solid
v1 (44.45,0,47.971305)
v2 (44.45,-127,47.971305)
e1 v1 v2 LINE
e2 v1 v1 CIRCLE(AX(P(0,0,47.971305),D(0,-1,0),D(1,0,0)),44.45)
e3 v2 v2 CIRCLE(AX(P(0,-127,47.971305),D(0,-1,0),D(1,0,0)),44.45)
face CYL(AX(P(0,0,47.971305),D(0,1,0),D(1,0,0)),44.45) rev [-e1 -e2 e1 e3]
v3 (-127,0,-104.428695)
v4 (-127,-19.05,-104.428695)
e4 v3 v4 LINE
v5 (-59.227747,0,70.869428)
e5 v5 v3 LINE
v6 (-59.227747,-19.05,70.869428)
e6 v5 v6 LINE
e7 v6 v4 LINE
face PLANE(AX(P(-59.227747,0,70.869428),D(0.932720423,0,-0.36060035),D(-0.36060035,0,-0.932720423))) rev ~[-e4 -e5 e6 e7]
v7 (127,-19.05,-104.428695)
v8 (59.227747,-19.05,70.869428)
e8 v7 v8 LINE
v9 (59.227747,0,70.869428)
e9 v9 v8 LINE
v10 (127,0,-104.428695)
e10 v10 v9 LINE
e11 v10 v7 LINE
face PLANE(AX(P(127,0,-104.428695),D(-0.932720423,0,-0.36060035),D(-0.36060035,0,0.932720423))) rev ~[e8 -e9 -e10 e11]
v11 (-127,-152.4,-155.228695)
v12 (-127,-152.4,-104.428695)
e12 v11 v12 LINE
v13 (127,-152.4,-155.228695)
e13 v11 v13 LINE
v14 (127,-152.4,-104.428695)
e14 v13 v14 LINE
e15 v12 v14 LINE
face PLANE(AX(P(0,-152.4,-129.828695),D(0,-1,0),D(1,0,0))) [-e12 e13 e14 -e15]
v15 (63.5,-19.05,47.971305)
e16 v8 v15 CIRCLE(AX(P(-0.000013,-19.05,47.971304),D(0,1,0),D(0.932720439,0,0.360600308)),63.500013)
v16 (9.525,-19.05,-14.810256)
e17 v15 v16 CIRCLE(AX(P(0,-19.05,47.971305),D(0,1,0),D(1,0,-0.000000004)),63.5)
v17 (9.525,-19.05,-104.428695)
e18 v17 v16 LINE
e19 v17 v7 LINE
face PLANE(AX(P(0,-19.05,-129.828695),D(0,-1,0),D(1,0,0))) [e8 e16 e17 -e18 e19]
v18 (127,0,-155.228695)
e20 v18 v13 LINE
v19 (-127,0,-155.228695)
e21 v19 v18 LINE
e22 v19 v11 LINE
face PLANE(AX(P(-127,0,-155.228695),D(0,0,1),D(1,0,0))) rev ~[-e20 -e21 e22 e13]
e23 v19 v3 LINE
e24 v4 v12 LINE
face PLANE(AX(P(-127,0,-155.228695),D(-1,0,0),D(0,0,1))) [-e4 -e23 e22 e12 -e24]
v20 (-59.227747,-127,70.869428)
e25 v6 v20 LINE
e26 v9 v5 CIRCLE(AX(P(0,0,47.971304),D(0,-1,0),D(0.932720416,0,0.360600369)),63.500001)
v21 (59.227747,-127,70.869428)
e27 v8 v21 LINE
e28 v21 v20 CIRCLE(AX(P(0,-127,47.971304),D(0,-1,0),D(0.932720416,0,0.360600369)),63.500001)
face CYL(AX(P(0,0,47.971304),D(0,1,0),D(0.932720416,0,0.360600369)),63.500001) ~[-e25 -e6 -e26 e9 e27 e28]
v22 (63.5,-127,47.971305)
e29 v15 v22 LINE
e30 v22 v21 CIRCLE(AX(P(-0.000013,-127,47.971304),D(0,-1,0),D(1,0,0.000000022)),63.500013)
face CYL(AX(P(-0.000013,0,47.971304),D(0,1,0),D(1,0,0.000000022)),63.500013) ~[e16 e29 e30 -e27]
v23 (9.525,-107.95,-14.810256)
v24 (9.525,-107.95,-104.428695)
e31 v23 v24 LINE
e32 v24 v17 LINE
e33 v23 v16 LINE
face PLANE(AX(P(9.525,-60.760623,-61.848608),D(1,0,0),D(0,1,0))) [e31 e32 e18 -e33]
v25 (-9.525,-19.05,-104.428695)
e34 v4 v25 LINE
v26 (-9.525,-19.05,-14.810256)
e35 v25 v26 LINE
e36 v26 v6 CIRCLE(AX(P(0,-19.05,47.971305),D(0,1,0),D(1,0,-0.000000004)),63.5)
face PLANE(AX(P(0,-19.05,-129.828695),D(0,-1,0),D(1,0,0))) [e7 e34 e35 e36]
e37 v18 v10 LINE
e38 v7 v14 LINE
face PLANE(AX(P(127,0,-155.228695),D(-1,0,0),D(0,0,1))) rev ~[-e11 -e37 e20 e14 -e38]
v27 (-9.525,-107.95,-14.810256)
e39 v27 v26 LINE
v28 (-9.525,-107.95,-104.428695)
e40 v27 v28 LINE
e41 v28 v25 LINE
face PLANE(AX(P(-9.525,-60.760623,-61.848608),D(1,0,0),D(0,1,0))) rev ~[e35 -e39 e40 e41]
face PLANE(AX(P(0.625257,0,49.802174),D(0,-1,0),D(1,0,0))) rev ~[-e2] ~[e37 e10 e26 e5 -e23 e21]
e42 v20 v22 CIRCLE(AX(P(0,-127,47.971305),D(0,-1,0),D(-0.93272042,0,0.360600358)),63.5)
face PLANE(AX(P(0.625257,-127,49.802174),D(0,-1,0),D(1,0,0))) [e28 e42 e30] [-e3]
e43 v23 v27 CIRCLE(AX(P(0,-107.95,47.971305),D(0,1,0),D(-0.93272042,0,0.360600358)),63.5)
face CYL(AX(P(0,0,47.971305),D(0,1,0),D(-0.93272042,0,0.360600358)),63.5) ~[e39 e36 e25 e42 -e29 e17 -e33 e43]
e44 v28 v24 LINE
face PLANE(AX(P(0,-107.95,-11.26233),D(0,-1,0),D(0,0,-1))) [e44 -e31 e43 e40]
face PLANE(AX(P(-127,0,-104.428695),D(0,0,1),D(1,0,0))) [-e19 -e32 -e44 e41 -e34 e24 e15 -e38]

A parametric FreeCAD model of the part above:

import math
import FreeCAD as App
import Part
import Sketcher
Q = App.Units.Quantity


def add_polygon(sketch, points):
    """Adds a closed chain of lines whose ends are joined by coincident constraints."""
    first, n = sketch.GeometryCount, len(points)
    for a, b in zip(points, points[1:] + points[:1]):
        sketch.addGeometry(Part.LineSegment(App.Vector(*a, 0), App.Vector(*b, 0)), False)
    for i in range(n):
        sketch.addConstraint(Sketcher.Constraint("Coincident", first + i, 2, first + (i + 1) % n, 1))

doc = App.newDocument("Part")
body = doc.addObject("PartDesign::Body", "Body")

sketch1 = body.newObject("Sketcher::SketchObject", "Sketch")
sketch1.AttachmentSupport = (doc.getObject("XZ_Plane"), [""])
sketch1.MapMode = "FlatFace"
add_polygon(sketch1, [(-127, -104.428695), (-127, -155.228695), (127, -155.228695), (127, -104.428695)])
sketch1.addConstraint([
    Sketcher.Constraint("Vertical", 0),
    Sketcher.Constraint("Horizontal", 1),
    Sketcher.Constraint("Vertical", 2),
    Sketcher.Constraint("Horizontal", 3),
    Sketcher.Constraint("DistanceX", 1, 1, 1, 2, Q("10 in")),
    Sketcher.Constraint("DistanceY", 0, 2, 0, 1, Q("2 in")),
    Sketcher.Constraint("DistanceX", 0, 2, -1, 1, Q("5 in")),
    Sketcher.Constraint("DistanceY", 0, 2, -1, 1, Q("155.228695 mm")),
])
pad1 = body.newObject("PartDesign::Pad", "Pad")
pad1.Profile = sketch1
pad1.Length = Q("6 in")

sketch2 = body.newObject("Sketcher::SketchObject", "Sketch001")
sketch2.AttachmentSupport = (doc.getObject("XZ_Plane"), [""])
sketch2.MapMode = "FlatFace"
sketch2.addGeometry([
    Part.LineSegment(App.Vector(-127, -104.428695, 0), App.Vector(-127, -155.228695, 0)),
    Part.LineSegment(App.Vector(-127, -155.228695, 0), App.Vector(127, -155.228695, 0)),
    Part.LineSegment(App.Vector(127, -155.228695, 0), App.Vector(127, -104.428695, 0)),
    Part.LineSegment(App.Vector(127, -104.428695, 0), App.Vector(59.227747, 70.869428, 0)),
    Part.ArcOfCircle(Part.Circle(App.Vector(-0.000013, 47.971304, 0), App.Vector(0, 0, 1), 63.500013), math.radians(0.000001), math.radians(21.137068)),
    Part.ArcOfCircle(Part.Circle(App.Vector(0, 47.971305, 0), App.Vector(0, 0, 1), 63.5), math.radians(158.862929), math.radians(360)),
    Part.LineSegment(App.Vector(-59.227747, 70.869428, 0), App.Vector(-127, -104.428695, 0)),
], False)
sketch2.addConstraint([
    Sketcher.Constraint("Coincident", 0, 2, 1, 1),
    Sketcher.Constraint("Coincident", 1, 2, 2, 1),
    Sketcher.Constraint("Coincident", 2, 2, 3, 1),
    Sketcher.Constraint("Tangent", 3, 2, 4, 2),
    Sketcher.Constraint("Tangent", 4, 1, 5, 2),
    Sketcher.Constraint("Tangent", 5, 1, 6, 1),
    Sketcher.Constraint("Coincident", 6, 2, 0, 1),
    Sketcher.Constraint("Vertical", 0),
    Sketcher.Constraint("Horizontal", 1),
    Sketcher.Constraint("Vertical", 2),
    Sketcher.Constraint("Symmetric", 3, 2, 5, 1, -2),
    Sketcher.Constraint("Symmetric", 2, 2, 6, 2, -2),
    Sketcher.Constraint("Horizontal", 5, 3, 4, 1),
    Sketcher.Constraint("Radius", 5, Q("2.5 in")),
    Sketcher.Constraint("DistanceX", 1, 1, 1, 2, Q("10 in")),
    Sketcher.Constraint("DistanceY", 0, 2, 0, 1, Q("2 in")),
    Sketcher.Constraint("DistanceY", 0, 2, 4, 3, Q("7.9999999 in")),
    Sketcher.Constraint("DistanceY", -1, 1, 3, 2, Q("70.869428 mm")),
])
pad2 = body.newObject("PartDesign::Pad", "Pad001")
pad2.Profile = sketch2
pad2.Length = Q("0.75 in")

sketch3 = body.newObject("Sketcher::SketchObject", "Sketch002")
sketch3.AttachmentSupport = (doc.getObject("XZ_Plane"), [""])
sketch3.MapMode = "FlatFace"
sketch3.addGeometry([
    Part.ArcOfCircle(Part.Circle(App.Vector(0, 47.971304, 0), App.Vector(0, 0, 1), 63.500001), math.radians(21.137071), math.radians(158.862929)),
    Part.ArcOfCircle(Part.Circle(App.Vector(0, 47.971305, 0), App.Vector(0, 0, 1), 63.5), math.radians(158.862929), math.radians(360)),
    Part.ArcOfCircle(Part.Circle(App.Vector(-0.000013, 47.971304, 0), App.Vector(0, 0, 1), 63.500013), math.radians(0.000001), math.radians(21.137068)),
    Part.Circle(App.Vector(0, 47.971305, 0), App.Vector(0, 0, 1), 44.45),
], False)
sketch3.addConstraint([
    Sketcher.Constraint("Coincident", 0, 2, 1, 1),
    Sketcher.Constraint("Coincident", 1, 2, 2, 1),
    Sketcher.Constraint("Coincident", 2, 2, 0, 1),
    Sketcher.Constraint("Coincident", 1, 3, 0, 3),
    Sketcher.Constraint("Coincident", 3, 3, 0, 3),
    Sketcher.Constraint("PointOnObject", 0, 3, -2),
    Sketcher.Constraint("Diameter", 3, Q("3.5 in")),
    Sketcher.Constraint("Radius", 0, Q("2.5 in")),
    Sketcher.Constraint("Radius", 2, Q("63.500013 mm")),
    Sketcher.Constraint("DistanceY", -1, 1, 0, 2, Q("70.869428 mm")),
    Sketcher.Constraint("DistanceX", 2, 3, 2, 2, Q("59.22776 mm")),
    Sketcher.Constraint("DistanceY", -1, 1, 0, 3, Q("47.971304 mm")),
    Sketcher.Constraint("DistanceY", -1, 1, 1, 2, Q("47.971305 mm")),
])
pad3 = body.newObject("PartDesign::Pad", "Pad002")
pad3.Profile = sketch3
pad3.Length = Q("5 in")

sketch4 = body.newObject("Sketcher::SketchObject", "Sketch003")
sketch4.AttachmentSupport = (doc.getObject("YZ_Plane"), [""])
sketch4.MapMode = "FlatFace"
add_polygon(sketch4, [(-13.847807, -10.107701), (-107.95, -11.26233), (-107.95, -113.015743), (-13.847807, -113.015743)])
sketch4.addConstraint([
    Sketcher.Constraint("Vertical", 1),
    Sketcher.Constraint("Horizontal", 2),
    Sketcher.Constraint("Vertical", 3),
    Sketcher.Constraint("DistanceX", 0, 2, -1, 1, Q("4.25 in")),
    Sketcher.Constraint("DistanceY", 3, 1, 3, 2, Q("102.908042 mm")),
    Sketcher.Constraint("DistanceY", 3, 2, -1, 1, Q("10.107701 mm")),
    Sketcher.Constraint("DistanceX", 2, 1, 2, 2, Q("94.102193 mm")),
    Sketcher.Constraint("DistanceY", 1, 2, 1, 1, Q("101.753413 mm")),
])
pad4 = body.newObject("PartDesign::Pad", "Pad003")
pad4.Profile = sketch4
pad4.Length = Q("0.75 in")
pad4.Midplane = True

doc.recompute()
